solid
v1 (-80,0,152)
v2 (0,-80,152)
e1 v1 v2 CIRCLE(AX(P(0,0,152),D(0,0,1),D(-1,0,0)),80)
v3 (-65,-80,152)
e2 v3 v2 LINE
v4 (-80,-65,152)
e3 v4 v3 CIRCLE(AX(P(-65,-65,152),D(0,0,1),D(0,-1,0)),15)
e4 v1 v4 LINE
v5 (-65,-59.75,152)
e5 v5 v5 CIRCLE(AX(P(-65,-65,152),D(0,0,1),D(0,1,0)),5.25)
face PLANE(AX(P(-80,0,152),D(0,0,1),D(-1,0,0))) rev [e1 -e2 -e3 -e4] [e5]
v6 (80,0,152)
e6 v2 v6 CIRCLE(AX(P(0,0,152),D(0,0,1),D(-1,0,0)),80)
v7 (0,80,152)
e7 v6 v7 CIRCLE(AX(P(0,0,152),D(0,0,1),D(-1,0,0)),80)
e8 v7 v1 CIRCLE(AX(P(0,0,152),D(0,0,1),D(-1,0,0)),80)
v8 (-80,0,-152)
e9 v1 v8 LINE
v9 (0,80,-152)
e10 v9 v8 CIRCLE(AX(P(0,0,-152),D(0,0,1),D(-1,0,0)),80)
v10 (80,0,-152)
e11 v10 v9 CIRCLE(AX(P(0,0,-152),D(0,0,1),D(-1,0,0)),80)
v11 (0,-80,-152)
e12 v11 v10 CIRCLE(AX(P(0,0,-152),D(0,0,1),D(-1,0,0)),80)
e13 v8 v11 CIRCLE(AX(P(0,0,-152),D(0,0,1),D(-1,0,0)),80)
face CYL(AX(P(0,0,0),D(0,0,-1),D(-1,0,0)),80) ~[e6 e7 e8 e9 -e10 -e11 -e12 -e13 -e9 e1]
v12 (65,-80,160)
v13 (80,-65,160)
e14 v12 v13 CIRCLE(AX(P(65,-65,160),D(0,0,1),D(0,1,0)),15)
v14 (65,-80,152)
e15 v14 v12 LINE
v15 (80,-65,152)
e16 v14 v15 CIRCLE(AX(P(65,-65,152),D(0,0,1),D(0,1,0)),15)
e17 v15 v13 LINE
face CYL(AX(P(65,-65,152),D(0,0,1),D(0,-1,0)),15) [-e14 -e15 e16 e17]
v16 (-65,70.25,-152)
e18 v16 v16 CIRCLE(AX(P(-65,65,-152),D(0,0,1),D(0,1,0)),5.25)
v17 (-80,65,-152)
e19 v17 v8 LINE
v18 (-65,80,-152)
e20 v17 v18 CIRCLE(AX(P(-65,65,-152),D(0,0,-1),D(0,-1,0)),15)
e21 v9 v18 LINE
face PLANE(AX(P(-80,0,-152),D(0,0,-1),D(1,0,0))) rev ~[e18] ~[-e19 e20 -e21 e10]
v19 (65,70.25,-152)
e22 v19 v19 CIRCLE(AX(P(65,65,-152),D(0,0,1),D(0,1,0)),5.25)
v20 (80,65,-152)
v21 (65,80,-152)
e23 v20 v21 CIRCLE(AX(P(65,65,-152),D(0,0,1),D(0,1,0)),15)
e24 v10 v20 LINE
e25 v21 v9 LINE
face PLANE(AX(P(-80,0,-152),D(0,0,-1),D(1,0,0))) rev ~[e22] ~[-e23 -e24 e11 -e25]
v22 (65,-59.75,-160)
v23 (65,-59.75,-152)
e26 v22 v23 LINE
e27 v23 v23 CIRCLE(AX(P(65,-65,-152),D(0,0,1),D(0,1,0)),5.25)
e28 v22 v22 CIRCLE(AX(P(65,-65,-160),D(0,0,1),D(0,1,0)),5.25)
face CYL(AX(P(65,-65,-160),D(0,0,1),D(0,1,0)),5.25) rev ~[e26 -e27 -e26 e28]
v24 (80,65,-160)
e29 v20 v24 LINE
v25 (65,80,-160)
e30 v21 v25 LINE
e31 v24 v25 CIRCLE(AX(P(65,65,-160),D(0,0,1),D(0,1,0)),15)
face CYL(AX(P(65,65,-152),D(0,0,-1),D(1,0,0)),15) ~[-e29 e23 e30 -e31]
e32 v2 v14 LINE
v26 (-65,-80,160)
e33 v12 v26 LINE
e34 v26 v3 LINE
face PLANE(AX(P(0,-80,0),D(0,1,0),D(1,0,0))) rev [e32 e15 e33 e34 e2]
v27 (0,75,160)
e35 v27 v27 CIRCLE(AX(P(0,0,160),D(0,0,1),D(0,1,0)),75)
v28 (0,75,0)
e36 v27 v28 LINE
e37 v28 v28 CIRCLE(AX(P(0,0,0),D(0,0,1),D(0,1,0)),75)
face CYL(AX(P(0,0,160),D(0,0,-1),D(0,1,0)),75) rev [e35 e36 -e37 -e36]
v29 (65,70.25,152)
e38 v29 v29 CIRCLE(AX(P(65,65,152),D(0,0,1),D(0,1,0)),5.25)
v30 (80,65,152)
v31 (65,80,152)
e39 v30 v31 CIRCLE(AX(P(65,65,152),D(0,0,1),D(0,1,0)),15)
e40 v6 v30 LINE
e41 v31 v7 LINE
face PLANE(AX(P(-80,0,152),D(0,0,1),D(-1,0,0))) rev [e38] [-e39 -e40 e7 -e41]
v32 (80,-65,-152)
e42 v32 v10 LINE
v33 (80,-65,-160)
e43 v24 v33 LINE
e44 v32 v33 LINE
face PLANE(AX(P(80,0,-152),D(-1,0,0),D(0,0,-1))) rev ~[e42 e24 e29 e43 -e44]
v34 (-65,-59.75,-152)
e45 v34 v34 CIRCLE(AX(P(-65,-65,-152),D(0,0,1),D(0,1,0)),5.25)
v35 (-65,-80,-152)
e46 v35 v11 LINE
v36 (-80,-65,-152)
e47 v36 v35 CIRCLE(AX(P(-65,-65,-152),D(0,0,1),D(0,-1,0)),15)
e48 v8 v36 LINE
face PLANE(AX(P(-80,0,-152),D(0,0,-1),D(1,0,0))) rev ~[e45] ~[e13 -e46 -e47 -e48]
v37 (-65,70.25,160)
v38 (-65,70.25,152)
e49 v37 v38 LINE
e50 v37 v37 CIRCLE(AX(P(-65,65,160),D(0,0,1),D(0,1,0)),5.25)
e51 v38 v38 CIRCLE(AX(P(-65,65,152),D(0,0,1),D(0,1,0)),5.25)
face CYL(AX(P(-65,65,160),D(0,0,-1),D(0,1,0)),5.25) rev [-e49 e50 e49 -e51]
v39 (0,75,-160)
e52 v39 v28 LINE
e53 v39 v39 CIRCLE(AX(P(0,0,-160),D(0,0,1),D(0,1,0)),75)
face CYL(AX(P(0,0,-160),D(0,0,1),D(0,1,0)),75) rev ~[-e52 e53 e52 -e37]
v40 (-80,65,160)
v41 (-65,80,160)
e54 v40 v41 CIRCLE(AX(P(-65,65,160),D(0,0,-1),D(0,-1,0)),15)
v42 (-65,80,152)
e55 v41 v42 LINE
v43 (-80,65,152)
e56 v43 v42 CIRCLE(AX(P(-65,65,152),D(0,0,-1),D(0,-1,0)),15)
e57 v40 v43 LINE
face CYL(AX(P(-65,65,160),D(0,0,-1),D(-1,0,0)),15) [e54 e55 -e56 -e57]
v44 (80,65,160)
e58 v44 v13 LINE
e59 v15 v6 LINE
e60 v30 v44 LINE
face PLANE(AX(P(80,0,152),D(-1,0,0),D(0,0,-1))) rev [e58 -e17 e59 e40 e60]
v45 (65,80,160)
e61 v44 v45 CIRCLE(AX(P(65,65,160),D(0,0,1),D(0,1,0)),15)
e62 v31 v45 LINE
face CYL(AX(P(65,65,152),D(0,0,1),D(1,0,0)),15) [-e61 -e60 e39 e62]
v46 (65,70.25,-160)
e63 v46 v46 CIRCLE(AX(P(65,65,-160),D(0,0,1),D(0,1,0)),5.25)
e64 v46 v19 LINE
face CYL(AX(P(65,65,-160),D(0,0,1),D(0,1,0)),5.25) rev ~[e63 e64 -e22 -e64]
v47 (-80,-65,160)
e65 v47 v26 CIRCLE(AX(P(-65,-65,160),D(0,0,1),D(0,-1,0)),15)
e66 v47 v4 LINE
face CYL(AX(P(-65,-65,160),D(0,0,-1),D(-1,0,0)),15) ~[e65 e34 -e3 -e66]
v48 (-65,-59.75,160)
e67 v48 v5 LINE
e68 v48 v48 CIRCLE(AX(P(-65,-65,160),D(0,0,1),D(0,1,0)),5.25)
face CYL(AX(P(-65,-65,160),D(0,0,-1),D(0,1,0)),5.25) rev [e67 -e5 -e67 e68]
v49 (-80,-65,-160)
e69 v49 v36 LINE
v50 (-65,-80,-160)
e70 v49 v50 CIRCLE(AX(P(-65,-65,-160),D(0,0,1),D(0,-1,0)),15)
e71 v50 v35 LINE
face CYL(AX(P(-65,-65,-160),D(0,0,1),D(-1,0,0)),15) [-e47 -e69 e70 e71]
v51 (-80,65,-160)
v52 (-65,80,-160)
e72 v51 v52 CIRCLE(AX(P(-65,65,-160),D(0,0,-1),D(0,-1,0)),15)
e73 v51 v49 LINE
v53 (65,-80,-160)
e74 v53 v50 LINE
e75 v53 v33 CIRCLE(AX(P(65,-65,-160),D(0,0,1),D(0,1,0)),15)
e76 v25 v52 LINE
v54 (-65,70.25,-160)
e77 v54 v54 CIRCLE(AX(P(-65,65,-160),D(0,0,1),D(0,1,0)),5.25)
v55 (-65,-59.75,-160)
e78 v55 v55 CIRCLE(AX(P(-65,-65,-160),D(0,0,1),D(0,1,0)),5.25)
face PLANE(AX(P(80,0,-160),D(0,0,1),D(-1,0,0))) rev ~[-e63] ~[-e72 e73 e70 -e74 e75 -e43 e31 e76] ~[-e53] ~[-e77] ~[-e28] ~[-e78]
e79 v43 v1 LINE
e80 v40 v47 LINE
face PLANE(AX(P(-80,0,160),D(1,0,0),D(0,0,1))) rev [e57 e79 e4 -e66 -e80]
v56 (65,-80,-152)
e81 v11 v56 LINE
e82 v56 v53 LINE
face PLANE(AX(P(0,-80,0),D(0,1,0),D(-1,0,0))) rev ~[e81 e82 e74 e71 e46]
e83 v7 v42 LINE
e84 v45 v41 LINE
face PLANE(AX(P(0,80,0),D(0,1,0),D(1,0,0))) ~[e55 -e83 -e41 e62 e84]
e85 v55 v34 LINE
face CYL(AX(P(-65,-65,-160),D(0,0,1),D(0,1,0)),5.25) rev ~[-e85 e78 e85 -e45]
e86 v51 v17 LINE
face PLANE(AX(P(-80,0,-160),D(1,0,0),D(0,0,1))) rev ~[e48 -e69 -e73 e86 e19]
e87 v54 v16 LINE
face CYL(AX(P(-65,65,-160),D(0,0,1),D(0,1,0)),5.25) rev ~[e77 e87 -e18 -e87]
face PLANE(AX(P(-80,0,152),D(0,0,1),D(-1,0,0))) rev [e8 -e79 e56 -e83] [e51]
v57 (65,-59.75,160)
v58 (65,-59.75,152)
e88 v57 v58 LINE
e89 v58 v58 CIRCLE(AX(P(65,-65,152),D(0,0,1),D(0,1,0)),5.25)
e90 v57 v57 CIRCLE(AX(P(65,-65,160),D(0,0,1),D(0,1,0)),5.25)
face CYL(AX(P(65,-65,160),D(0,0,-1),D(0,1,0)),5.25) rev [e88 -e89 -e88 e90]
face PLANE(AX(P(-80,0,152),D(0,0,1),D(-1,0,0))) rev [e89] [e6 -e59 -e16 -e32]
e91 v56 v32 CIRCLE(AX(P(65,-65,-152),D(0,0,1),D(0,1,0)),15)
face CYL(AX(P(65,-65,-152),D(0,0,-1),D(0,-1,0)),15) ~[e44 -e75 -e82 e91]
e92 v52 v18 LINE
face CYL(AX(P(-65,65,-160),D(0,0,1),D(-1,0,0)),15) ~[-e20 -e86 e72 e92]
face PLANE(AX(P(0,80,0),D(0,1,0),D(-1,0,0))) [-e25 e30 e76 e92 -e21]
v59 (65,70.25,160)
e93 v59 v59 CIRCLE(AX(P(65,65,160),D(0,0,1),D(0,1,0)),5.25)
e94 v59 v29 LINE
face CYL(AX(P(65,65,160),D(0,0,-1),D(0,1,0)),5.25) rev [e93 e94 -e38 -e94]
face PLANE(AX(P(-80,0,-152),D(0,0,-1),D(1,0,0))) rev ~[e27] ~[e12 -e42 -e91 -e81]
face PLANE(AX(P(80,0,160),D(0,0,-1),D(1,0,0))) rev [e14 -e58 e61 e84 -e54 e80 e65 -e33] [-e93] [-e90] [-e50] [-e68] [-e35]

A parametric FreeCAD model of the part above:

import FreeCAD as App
import Part
import Sketcher
from FreeCAD import Vector


def edges_at(feature, points):
    """Names of the edges that pass closest to the given points."""
    edges = feature.Shape.Edges
    near = lambda p: min(range(len(edges)), key=lambda i: edges[i].distToShape(Part.Vertex(*p))[0])
    return sorted({f"Edge{near(p) + 1}" for p in points})


def add_polygon(sketch, points):
    """Adds a closed chain of lines whose ends are joined by coincident constraints."""
    first, n = sketch.GeometryCount, len(points)
    for a, b in zip(points, points[1:] + points[:1]):
        sketch.addGeometry(Part.LineSegment(App.Vector(*a, 0), App.Vector(*b, 0)), False)
    for i in range(n):
        sketch.addConstraint(Sketcher.Constraint("Coincident", first + i, 2, first + (i + 1) % n, 1))

doc = App.newDocument("Part")
params = doc.addObject("Spreadsheet::Sheet", "Params")
for row, (alias, value) in enumerate([
    ("sketch1_width", "80 mm"),
    ("sketch1_height", "152 mm"),
    ("revolution_angle", "360 deg"),
    ("sketch2_width", "160 mm"),
    ("sketch2_height", "8 mm"),
    ("pad1_length", "160 mm"),
    ("fillet_radius", "15 mm"),
    ("sketch3_diameter", "150 mm"),
    ("hole_diameter", "150 mm"),
    ("sketch4_diameter", "10.5 mm"),
    ("hole2_diameter", "10.5 mm"),
], start=1):
    params.set(f"A{row}", alias)
    params.set(f"B{row}", "=" + value)
    params.setAlias(f"B{row}", alias)

body = doc.addObject("PartDesign::Body", "Body")

sketch1 = body.newObject("Sketcher::SketchObject", "Sketch")
sketch1.AttachmentSupport = (doc.getObject("XZ_Plane"), [""])
sketch1.MapMode = "FlatFace"
add_polygon(sketch1, [(-80, 0), (0, 0), (0, -152), (-80, -152)])
sketch1.addConstraint([
    Sketcher.Constraint("Horizontal", 0),
    Sketcher.Constraint("Vertical", 1),
    Sketcher.Constraint("Horizontal", 2),
    Sketcher.Constraint("Vertical", 3),
    Sketcher.Constraint("Coincident", 0, 2, -1, 1),
    Sketcher.Constraint("DistanceX", 0, 1, 0, 2, 80.0),
    Sketcher.Constraint("DistanceY", 1, 2, 1, 1, 152.0),
])
sketch1.setExpression("Constraints[9]", "Params.sketch1_width")
sketch1.setExpression("Constraints[10]", "Params.sketch1_height")
revolution = body.newObject("PartDesign::Revolution", "Revolution")
revolution.Profile = sketch1
revolution.ReferenceAxis = (sketch1, ["V_Axis"])
revolution.setExpression("Angle", "Params.revolution_angle")

sketch2 = body.newObject("Sketcher::SketchObject", "Sketch001")
sketch2.AttachmentSupport = (doc.getObject("XZ_Plane"), [""])
sketch2.MapMode = "FlatFace"
add_polygon(sketch2, [(-80, -152), (80, -152), (80, -160), (-80, -160)])
sketch2.addConstraint([
    Sketcher.Constraint("Horizontal", 0),
    Sketcher.Constraint("Vertical", 1),
    Sketcher.Constraint("Horizontal", 2),
    Sketcher.Constraint("Vertical", 3),
    Sketcher.Constraint("DistanceX", 0, 1, 0, 2, 160.0),
    Sketcher.Constraint("DistanceY", 1, 2, 1, 1, 8.0),
    Sketcher.Constraint("DistanceY", 1, 2, -1, 1, 160.0),
    Sketcher.Constraint("DistanceX", -1, 1, 0, 2, 80.0),
])
sketch2.setExpression("Constraints[8]", "Params.sketch2_width")
sketch2.setExpression("Constraints[9]", "Params.sketch2_height")
pad1 = body.newObject("PartDesign::Pad", "Pad")
pad1.Profile = sketch2
pad1.setExpression("Length", "Params.pad1_length")
pad1.Midplane = True
doc.recompute()

fillet = body.newObject("PartDesign::Fillet", "Fillet")
fillet.Base = (pad1, edges_at(pad1, [
    (80, 80, -156),
    (-80, 80, -156),
    (80, -80, -156),
    (-80, -80, -156),
]))
fillet.setExpression("Radius", "Params.fillet_radius")

sketch3 = body.newObject("Sketcher::SketchObject", "Sketch002")
sketch3.AttachmentSupport = (doc.getObject("XY_Plane"), [""])
sketch3.MapMode = "FlatFace"
sketch3.AttachmentOffset = App.Placement(Vector(0, 0, -160), App.Rotation())
sketch3.addGeometry(Part.Circle(Vector(0, 0, 0), Vector(0, 0, 1), 75), False)
sketch3.addConstraint([
    Sketcher.Constraint("Coincident", 0, 3, -1, 1),
    Sketcher.Constraint("Diameter", 0, 150.0),
])
sketch3.setExpression("Constraints[1]", "Params.sketch3_diameter")
doc.recompute()
hole = body.newObject("PartDesign::Hole", "Hole")
hole.Profile = sketch3
hole.ThreadType = "None"
hole.setExpression("Diameter", "Params.hole_diameter")
hole.DepthType = "ThroughAll"
hole.Reversed = True

sketch4 = body.newObject("Sketcher::SketchObject", "Sketch003")
sketch4.AttachmentSupport = (doc.getObject("XY_Plane"), [""])
sketch4.MapMode = "FlatFace"
sketch4.AttachmentOffset = App.Placement(Vector(0, 0, -160), App.Rotation())
sketch4.addGeometry([
    Part.Circle(Vector(-65, 65, 0), Vector(0, 0, 1), 5),
    Part.Circle(Vector(65, 65, 0), Vector(0, 0, 1), 5),
    Part.Circle(Vector(65, -65, 0), Vector(0, 0, 1), 5),
    Part.Circle(Vector(-65, -65, 0), Vector(0, 0, 1), 5),
], False)
sketch4.addConstraint([
    Sketcher.Constraint("Equal", 0, 1),
    Sketcher.Constraint("Equal", 1, 2),
    Sketcher.Constraint("Equal", 2, 3),
    Sketcher.Constraint("Symmetric", 0, 3, 2, 3, -1, 1),
    Sketcher.Constraint("Symmetric", 1, 3, 3, 3, -1, 1),
    Sketcher.Constraint("Symmetric", 0, 3, 1, 3, -2),
    Sketcher.Constraint("Diameter", 0, 10.5),
    Sketcher.Constraint("DistanceX", 0, 3, -1, 1, 65.0),
    Sketcher.Constraint("DistanceY", -1, 1, 0, 3, 65.0),
])
sketch4.setExpression("Constraints[6]", "Params.sketch4_diameter")
doc.recompute()
hole2 = body.newObject("PartDesign::Hole", "Hole001")
hole2.Profile = sketch4
hole2.ThreadType = "None"
hole2.setExpression("Diameter", "Params.hole2_diameter")
hole2.DepthType = "ThroughAll"
hole2.Reversed = True
doc.recompute()

mirrored = body.newObject("PartDesign::Mirrored", "Mirrored")
mirrored.TransformMode = "Transform body"
mirrored.MirrorPlane = (doc.getObject("XY_Plane"), [""])
body.Tip = mirrored

doc.recompute()
